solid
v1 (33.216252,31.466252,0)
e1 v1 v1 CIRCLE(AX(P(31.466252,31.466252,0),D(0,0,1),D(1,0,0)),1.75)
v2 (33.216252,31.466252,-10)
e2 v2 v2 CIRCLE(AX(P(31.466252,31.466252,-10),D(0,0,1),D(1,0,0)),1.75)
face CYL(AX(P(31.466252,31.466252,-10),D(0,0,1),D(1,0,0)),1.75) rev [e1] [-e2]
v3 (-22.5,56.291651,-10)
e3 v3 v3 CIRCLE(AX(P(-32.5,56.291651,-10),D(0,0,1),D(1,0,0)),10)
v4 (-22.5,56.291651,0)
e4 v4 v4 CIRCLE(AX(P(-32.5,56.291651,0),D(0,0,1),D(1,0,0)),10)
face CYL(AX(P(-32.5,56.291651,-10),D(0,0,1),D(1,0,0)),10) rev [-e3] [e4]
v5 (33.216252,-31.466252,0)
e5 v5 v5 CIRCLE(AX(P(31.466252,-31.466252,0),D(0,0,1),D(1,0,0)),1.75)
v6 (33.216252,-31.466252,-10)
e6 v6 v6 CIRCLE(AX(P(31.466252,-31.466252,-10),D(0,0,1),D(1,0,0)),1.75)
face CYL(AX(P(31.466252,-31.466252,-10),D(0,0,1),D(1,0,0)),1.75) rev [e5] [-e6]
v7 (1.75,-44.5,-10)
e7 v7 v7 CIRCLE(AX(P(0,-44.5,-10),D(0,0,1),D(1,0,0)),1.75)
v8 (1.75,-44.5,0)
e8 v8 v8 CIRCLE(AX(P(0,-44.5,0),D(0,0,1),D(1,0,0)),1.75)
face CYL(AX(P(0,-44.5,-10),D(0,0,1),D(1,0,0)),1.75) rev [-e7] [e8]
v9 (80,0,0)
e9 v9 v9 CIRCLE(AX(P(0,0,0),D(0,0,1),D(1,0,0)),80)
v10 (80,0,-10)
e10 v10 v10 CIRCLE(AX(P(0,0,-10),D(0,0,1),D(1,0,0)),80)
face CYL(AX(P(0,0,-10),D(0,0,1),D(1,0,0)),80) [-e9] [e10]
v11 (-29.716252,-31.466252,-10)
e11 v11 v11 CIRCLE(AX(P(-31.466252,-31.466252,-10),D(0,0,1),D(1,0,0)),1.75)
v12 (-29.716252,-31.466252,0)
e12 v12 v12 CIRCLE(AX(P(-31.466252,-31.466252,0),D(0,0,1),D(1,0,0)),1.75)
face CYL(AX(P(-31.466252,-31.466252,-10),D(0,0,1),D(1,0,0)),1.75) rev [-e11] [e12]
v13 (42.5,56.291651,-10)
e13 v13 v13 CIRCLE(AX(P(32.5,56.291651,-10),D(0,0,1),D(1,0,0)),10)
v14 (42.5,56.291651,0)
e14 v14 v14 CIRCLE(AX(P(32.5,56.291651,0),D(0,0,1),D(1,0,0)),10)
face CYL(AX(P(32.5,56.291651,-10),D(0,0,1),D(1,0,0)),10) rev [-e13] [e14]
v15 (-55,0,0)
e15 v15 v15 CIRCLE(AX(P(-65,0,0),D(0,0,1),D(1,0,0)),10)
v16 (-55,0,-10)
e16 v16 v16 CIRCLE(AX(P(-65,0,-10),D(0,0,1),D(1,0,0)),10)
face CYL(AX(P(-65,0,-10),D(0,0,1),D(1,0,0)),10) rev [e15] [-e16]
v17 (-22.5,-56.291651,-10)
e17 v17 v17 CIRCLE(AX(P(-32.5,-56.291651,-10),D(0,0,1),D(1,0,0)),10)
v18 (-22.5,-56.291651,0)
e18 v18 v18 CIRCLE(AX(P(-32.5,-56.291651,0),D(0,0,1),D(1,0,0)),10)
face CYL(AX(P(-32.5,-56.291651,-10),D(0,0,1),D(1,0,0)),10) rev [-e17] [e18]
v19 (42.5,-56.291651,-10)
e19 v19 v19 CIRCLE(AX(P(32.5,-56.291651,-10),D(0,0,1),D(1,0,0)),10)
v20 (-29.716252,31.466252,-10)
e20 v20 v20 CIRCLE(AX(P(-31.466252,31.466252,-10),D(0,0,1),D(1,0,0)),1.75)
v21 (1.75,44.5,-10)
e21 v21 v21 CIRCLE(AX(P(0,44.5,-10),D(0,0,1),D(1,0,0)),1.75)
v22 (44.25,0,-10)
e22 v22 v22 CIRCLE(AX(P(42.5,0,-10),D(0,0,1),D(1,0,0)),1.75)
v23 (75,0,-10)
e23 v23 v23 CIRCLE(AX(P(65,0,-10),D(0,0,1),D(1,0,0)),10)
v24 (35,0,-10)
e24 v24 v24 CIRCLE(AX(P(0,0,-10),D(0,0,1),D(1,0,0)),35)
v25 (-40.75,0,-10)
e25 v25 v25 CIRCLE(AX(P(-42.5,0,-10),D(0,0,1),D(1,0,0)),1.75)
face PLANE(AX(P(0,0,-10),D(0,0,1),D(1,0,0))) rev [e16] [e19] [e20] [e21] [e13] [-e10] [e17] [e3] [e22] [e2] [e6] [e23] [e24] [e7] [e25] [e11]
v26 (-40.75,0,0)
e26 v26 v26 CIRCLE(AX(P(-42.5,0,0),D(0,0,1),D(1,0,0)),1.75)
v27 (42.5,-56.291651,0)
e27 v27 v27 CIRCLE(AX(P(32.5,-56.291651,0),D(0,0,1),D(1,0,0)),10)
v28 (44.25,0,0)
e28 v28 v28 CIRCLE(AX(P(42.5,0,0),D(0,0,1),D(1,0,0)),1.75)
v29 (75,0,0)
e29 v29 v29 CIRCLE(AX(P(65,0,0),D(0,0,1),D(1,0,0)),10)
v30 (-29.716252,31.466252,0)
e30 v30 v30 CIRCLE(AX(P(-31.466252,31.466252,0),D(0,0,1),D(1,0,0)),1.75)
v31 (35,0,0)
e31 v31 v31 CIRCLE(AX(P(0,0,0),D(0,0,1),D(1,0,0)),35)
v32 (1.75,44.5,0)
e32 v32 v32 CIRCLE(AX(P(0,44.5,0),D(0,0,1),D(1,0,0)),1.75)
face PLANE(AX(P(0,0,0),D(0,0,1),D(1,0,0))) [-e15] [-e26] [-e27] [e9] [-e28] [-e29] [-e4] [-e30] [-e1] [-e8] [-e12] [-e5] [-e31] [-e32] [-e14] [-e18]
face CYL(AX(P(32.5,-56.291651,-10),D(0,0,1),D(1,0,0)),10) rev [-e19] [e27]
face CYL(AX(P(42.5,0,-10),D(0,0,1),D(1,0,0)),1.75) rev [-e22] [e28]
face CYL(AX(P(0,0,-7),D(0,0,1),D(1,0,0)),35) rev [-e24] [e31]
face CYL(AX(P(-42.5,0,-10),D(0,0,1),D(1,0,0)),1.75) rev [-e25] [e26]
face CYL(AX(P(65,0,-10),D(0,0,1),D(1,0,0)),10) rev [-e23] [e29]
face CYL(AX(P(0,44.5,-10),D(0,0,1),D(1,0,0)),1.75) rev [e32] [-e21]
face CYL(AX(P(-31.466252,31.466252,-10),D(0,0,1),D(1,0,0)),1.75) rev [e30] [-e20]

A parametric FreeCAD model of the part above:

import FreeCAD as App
import Part
import Sketcher

V = App.Vector
Q = App.Units.Quantity

doc = App.newDocument("Part")
body = doc.addObject("PartDesign::Body", "Body")

# Sketch on XY plane
sketch1 = body.newObject("Sketcher::SketchObject", "Sketch")
sketch1.AttachmentSupport = (doc.getObject("XY_Plane"), [""])
sketch1.MapMode = "FlatFace"
sketch1.addGeometry(Part.Circle(V(0, 0, 0), V(0, 0, 1), 80), False)
sketch1.addConstraint(Sketcher.Constraint("Coincident", 0, 3, -1, 1))
sketch1.addConstraint(Sketcher.Constraint("Diameter", 0, Q("160 mm")))
pad1 = body.newObject("PartDesign::Pad", "Pad")
pad1.Profile = sketch1
pad1.Length = 10
pad1.Reversed = True

# Sketch on XY plane
sketch2 = body.newObject("Sketcher::SketchObject", "Sketch001")
sketch2.AttachmentSupport = (doc.getObject("XY_Plane"), [""])
sketch2.MapMode = "FlatFace"
sketch2.addGeometry(Part.Circle(V(0, 0, 0), V(0, 0, 1), 35), False)
sketch2.addConstraint(Sketcher.Constraint("Coincident", 0, 3, -1, 1))
sketch2.addConstraint(Sketcher.Constraint("Diameter", 0, Q("70 mm")))
pocket1 = body.newObject("PartDesign::Pocket", "Pocket")
pocket1.Profile = sketch2
pocket1.Length = 7

# Sketch on XY plane
sketch3 = body.newObject("Sketcher::SketchObject", "Sketch002")
sketch3.AttachmentSupport = (doc.getObject("XY_Plane"), [""])
sketch3.MapMode = "FlatFace"
sketch3.addGeometry(Part.Circle(V(-32, 56, 0), V(0, 0, 1), 10), False)
sketch3.addGeometry(Part.Circle(V(-65, 0, 0), V(0, 0, 1), 10), False)
sketch3.addGeometry(Part.Circle(V(-32, -56, 0), V(0, 0, 1), 10), False)
sketch3.addGeometry(Part.Circle(V(32, -56, 0), V(0, 0, 1), 10), False)
sketch3.addGeometry(Part.Circle(V(65, 0, 0), V(0, 0, 1), 10), False)
sketch3.addGeometry(Part.Circle(V(32, 56, 0), V(0, 0, 1), 10), False)
sketch3.addConstraint(Sketcher.Constraint("Equal", 0, 1))
sketch3.addConstraint(Sketcher.Constraint("Equal", 1, 2))
sketch3.addConstraint(Sketcher.Constraint("Equal", 2, 3))
sketch3.addConstraint(Sketcher.Constraint("Equal", 3, 4))
sketch3.addConstraint(Sketcher.Constraint("Equal", 4, 5))
sketch3.addConstraint(Sketcher.Constraint("Symmetric", 0, 3, 3, 3, -1, 1))
sketch3.addConstraint(Sketcher.Constraint("Symmetric", 1, 3, 4, 3, -1, 1))
sketch3.addConstraint(Sketcher.Constraint("Symmetric", 2, 3, 5, 3, -1, 1))
sketch3.addConstraint(Sketcher.Constraint("Symmetric", 2, 3, 3, 3, -2))
sketch3.addConstraint(Sketcher.Constraint("PointOnObject", 1, 3, -1))
sketch3.addConstraint(Sketcher.Constraint("Diameter", 0, Q("20 mm")))
sketch3.addConstraint(Sketcher.Constraint("DistanceX", 1, 3, -1, 1, Q("65 mm")))
sketch3.addConstraint(Sketcher.Constraint("DistanceX", 2, 3, 3, 3, Q("65 mm")))
sketch3.addConstraint(Sketcher.Constraint("DistanceY", -1, 1, 0, 3, Q("56.291651 mm")))
pocket2 = body.newObject("PartDesign::Pocket", "Pocket001")
pocket2.Profile = sketch3
pocket2.Length = 10

# Sketch on XY plane
sketch4 = body.newObject("Sketcher::SketchObject", "Sketch003")
sketch4.AttachmentSupport = (doc.getObject("XY_Plane"), [""])
sketch4.MapMode = "FlatFace"
sketch4.addGeometry(Part.Circle(V(0, 44.5, 0), V(0, 0, 1), 1.8), False)
sketch4.addGeometry(Part.Circle(V(31.5, 31.5, 0), V(0, 0, 1), 1.8), False)
sketch4.addGeometry(Part.Circle(V(42.5, 0, 0), V(0, 0, 1), 1.8), False)
sketch4.addGeometry(Part.Circle(V(31.5, -31.5, 0), V(0, 0, 1), 1.8), False)
sketch4.addGeometry(Part.Circle(V(-31.5, -31.5, 0), V(0, 0, 1), 1.8), False)
sketch4.addGeometry(Part.Circle(V(-42.5, 0, 0), V(0, 0, 1), 1.8), False)
sketch4.addGeometry(Part.Circle(V(-31.5, 31.5, 0), V(0, 0, 1), 1.8), False)
sketch4.addGeometry(Part.Circle(V(0, -44.5, 0), V(0, 0, 1), 1.8), False)
sketch4.addConstraint(Sketcher.Constraint("Equal", 0, 1))
sketch4.addConstraint(Sketcher.Constraint("Equal", 1, 2))
sketch4.addConstraint(Sketcher.Constraint("Equal", 2, 3))
sketch4.addConstraint(Sketcher.Constraint("Equal", 3, 4))
sketch4.addConstraint(Sketcher.Constraint("Equal", 4, 5))
sketch4.addConstraint(Sketcher.Constraint("Equal", 5, 6))
sketch4.addConstraint(Sketcher.Constraint("Equal", 6, 7))
sketch4.addConstraint(Sketcher.Constraint("Symmetric", 1, 3, 4, 3, -1, 1))
sketch4.addConstraint(Sketcher.Constraint("Symmetric", 2, 3, 5, 3, -1, 1))
sketch4.addConstraint(Sketcher.Constraint("Symmetric", 3, 3, 6, 3, -1, 1))
sketch4.addConstraint(Sketcher.Constraint("Symmetric", 0, 3, 7, 3, -1, 1))
sketch4.addConstraint(Sketcher.Constraint("Symmetric", 3, 3, 4, 3, -2))
sketch4.addConstraint(Sketcher.Constraint("PointOnObject", 0, 3, -2))
sketch4.addConstraint(Sketcher.Constraint("PointOnObject", 2, 3, -1))
sketch4.addConstraint(Sketcher.Constraint("Diameter", 0, Q("3.5 mm")))
sketch4.addConstraint(Sketcher.Constraint("DistanceX", 5, 3, 2, 3, Q("85 mm")))
sketch4.addConstraint(Sketcher.Constraint("DistanceY", -1, 1, 0, 3, Q("44.5 mm")))
sketch4.addConstraint(Sketcher.Constraint("DistanceX", -1, 1, 1, 3, Q("31.466252 mm")))
sketch4.addConstraint(Sketcher.Constraint("DistanceY", -1, 1, 1, 3, Q("31.466252 mm")))
pocket3 = body.newObject("PartDesign::Pocket", "Pocket002")
pocket3.Profile = sketch4
pocket3.Length = 10

# Sketch on XY plane
sketch5 = body.newObject("Sketcher::SketchObject", "Sketch004")
sketch5.AttachmentSupport = (doc.getObject("XY_Plane"), [""])
sketch5.MapMode = "FlatFace"
sketch5.addGeometry(Part.Circle(V(0, 0, 0), V(0, 0, 1), 35), False)
sketch5.addConstraint(Sketcher.Constraint("Coincident", 0, 3, -1, 1))
sketch5.addConstraint(Sketcher.Constraint("Diameter", 0, Q("70 mm")))
pocket4 = body.newObject("PartDesign::Pocket", "Pocket003")
pocket4.Profile = sketch5
pocket4.Length = 40
pocket4.Midplane = True

doc.recompute()
